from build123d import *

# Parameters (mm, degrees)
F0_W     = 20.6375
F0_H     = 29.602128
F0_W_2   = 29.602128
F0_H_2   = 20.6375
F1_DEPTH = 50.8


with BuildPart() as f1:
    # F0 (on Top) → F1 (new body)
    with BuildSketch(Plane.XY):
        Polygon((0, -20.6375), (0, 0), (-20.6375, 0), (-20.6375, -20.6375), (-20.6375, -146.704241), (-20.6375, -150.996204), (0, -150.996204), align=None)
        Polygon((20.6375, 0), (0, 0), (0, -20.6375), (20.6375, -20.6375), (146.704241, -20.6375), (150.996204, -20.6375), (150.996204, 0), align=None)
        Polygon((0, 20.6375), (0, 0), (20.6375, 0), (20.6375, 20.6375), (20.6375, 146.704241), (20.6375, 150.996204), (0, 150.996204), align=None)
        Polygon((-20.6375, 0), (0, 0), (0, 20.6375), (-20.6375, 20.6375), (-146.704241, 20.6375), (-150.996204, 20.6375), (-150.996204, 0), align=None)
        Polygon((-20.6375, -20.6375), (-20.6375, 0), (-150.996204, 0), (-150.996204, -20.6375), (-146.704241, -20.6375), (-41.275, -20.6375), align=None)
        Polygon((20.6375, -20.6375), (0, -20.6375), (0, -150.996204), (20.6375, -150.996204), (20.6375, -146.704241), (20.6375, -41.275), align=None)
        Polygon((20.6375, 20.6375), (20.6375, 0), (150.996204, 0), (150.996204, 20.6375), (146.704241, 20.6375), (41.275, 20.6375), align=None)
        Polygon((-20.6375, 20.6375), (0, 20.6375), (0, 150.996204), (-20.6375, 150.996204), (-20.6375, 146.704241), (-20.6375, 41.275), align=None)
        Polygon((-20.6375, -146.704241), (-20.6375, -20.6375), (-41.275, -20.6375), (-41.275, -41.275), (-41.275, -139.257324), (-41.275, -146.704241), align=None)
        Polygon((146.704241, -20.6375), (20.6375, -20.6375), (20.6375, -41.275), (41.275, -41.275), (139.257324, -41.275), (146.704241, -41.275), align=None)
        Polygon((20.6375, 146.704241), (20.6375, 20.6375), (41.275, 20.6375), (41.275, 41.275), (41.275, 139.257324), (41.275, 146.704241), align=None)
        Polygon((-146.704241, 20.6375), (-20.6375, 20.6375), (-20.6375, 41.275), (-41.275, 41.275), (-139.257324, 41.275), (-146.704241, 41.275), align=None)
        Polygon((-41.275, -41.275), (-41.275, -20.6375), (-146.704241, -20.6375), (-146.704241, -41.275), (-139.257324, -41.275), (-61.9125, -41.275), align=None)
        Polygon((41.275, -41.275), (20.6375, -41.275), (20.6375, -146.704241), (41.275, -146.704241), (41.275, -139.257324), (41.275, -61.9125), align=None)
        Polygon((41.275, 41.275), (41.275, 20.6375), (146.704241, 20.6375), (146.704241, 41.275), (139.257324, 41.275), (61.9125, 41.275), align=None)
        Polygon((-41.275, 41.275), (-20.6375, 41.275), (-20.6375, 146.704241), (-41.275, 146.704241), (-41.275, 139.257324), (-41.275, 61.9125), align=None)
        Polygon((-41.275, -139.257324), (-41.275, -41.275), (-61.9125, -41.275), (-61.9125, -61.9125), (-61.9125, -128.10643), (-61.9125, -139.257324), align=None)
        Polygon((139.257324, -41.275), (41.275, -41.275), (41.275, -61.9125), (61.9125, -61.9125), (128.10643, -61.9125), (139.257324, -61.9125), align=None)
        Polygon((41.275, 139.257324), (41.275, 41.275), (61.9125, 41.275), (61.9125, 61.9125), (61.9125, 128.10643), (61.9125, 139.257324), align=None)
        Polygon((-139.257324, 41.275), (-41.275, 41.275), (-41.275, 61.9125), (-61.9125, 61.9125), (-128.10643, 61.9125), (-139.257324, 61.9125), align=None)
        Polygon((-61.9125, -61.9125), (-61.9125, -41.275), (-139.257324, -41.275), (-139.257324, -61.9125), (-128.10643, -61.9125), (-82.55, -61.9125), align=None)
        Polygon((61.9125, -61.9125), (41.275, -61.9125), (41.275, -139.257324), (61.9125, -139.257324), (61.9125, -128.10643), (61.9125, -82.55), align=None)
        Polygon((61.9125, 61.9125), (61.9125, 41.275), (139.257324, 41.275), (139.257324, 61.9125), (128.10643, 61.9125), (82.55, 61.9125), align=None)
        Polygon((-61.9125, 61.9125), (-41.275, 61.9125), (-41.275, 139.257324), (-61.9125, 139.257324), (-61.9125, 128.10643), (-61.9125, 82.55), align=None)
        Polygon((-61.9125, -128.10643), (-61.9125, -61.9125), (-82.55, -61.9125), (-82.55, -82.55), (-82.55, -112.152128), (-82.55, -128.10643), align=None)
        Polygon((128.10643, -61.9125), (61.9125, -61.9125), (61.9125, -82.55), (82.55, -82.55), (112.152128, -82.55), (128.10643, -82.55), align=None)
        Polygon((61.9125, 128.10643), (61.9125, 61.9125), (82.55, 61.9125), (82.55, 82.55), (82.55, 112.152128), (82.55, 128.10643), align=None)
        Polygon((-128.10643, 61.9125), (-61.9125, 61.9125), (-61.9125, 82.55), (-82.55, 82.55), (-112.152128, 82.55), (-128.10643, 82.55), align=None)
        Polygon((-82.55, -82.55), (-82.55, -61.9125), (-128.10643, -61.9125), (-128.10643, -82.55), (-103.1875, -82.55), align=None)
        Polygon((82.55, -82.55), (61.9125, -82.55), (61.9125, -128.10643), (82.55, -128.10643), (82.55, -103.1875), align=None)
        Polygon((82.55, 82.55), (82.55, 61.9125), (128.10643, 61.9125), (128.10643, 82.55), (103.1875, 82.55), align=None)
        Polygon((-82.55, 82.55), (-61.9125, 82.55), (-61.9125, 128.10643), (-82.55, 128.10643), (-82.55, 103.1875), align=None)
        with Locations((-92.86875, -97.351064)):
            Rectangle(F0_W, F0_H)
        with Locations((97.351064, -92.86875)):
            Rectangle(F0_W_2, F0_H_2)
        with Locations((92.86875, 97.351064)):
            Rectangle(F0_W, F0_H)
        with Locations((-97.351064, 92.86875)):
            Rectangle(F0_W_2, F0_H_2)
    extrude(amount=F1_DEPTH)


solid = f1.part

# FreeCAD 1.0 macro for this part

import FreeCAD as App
import Part
import Sketcher
Q = App.Units.Quantity

doc = App.newDocument("Part")
params = doc.addObject("Spreadsheet::Sheet", "Params")
for row, (alias, value) in enumerate([
    ("sketch1_width", "1.625 in"),
    ("sketch1_width2", "0.8125 in"),
    ("pad1_length", "2 in"),
], start=1):
    params.set(f"A{row}", alias)
    params.set(f"B{row}", "=" + value)
    params.setAlias(f"B{row}", alias)

body = doc.addObject("PartDesign::Body", "Body")

# Sketch on XY plane
sketch1 = body.newObject("Sketcher::SketchObject", "Sketch")
sketch1.AttachmentSupport = (doc.getObject("XY_Plane"), [""])
sketch1.MapMode = "FlatFace"
sketch1.addGeometry([
    Part.LineSegment(App.Vector(-20.6, -146.7, 0), App.Vector(-20.6, -151, 0)),  # 0
    Part.LineSegment(App.Vector(-20.6, -151, 0), App.Vector(20.6, -151, 0)),  # 1
    Part.LineSegment(App.Vector(20.6, -151, 0), App.Vector(20.6, -146.7, 0)),  # 2
    Part.LineSegment(App.Vector(20.6, -146.7, 0), App.Vector(41.3, -146.7, 0)),  # 3
    Part.LineSegment(App.Vector(41.3, -146.7, 0), App.Vector(41.3, -139.3, 0)),  # 4
    Part.LineSegment(App.Vector(41.3, -139.3, 0), App.Vector(61.9, -139.3, 0)),  # 5
    Part.LineSegment(App.Vector(61.9, -139.3, 0), App.Vector(61.9, -128.1, 0)),  # 6
    Part.LineSegment(App.Vector(61.9, -128.1, 0), App.Vector(82.5, -128.1, 0)),  # 7
    Part.LineSegment(App.Vector(82.5, -128.1, 0), App.Vector(82.5, -103.2, 0)),  # 8
    Part.LineSegment(App.Vector(82.5, -103.2, 0), App.Vector(112.2, -103.2, 0)),  # 9
    Part.LineSegment(App.Vector(112.2, -103.2, 0), App.Vector(112.2, -82.5, 0)),  # 10
    Part.LineSegment(App.Vector(112.2, -82.5, 0), App.Vector(128.1, -82.5, 0)),  # 11
    Part.LineSegment(App.Vector(128.1, -82.5, 0), App.Vector(128.1, -61.9, 0)),  # 12
    Part.LineSegment(App.Vector(128.1, -61.9, 0), App.Vector(139.3, -61.9, 0)),  # 13
    Part.LineSegment(App.Vector(139.3, -61.9, 0), App.Vector(139.3, -41.3, 0)),  # 14
    Part.LineSegment(App.Vector(139.3, -41.3, 0), App.Vector(146.7, -41.3, 0)),  # 15
    Part.LineSegment(App.Vector(146.7, -41.3, 0), App.Vector(146.7, -20.6, 0)),  # 16
    Part.LineSegment(App.Vector(146.7, -20.6, 0), App.Vector(151, -20.6, 0)),  # 17
    Part.LineSegment(App.Vector(151, -20.6, 0), App.Vector(151, 20.6, 0)),  # 18
    Part.LineSegment(App.Vector(151, 20.6, 0), App.Vector(146.7, 20.6, 0)),  # 19
    Part.LineSegment(App.Vector(146.7, 20.6, 0), App.Vector(146.7, 41.3, 0)),  # 20
    Part.LineSegment(App.Vector(146.7, 41.3, 0), App.Vector(139.3, 41.3, 0)),  # 21
    Part.LineSegment(App.Vector(139.3, 41.3, 0), App.Vector(139.3, 61.9, 0)),  # 22
    Part.LineSegment(App.Vector(139.3, 61.9, 0), App.Vector(128.1, 61.9, 0)),  # 23
    Part.LineSegment(App.Vector(128.1, 61.9, 0), App.Vector(128.1, 82.5, 0)),  # 24
    Part.LineSegment(App.Vector(128.1, 82.5, 0), App.Vector(103.2, 82.5, 0)),  # 25
    Part.LineSegment(App.Vector(103.2, 82.5, 0), App.Vector(103.2, 112.2, 0)),  # 26
    Part.LineSegment(App.Vector(103.2, 112.2, 0), App.Vector(82.5, 112.2, 0)),  # 27
    Part.LineSegment(App.Vector(82.5, 112.2, 0), App.Vector(82.5, 128.1, 0)),  # 28
    Part.LineSegment(App.Vector(82.5, 128.1, 0), App.Vector(61.9, 128.1, 0)),  # 29
    Part.LineSegment(App.Vector(61.9, 128.1, 0), App.Vector(61.9, 139.3, 0)),  # 30
    Part.LineSegment(App.Vector(61.9, 139.3, 0), App.Vector(41.3, 139.3, 0)),  # 31
    Part.LineSegment(App.Vector(41.3, 139.3, 0), App.Vector(41.3, 146.7, 0)),  # 32
    Part.LineSegment(App.Vector(41.3, 146.7, 0), App.Vector(20.6, 146.7, 0)),  # 33
    Part.LineSegment(App.Vector(20.6, 146.7, 0), App.Vector(20.6, 151, 0)),  # 34
    Part.LineSegment(App.Vector(20.6, 151, 0), App.Vector(-20.6, 151, 0)),  # 35
    Part.LineSegment(App.Vector(-20.6, 151, 0), App.Vector(-20.6, 146.7, 0)),  # 36
    Part.LineSegment(App.Vector(-20.6, 146.7, 0), App.Vector(-41.3, 146.7, 0)),  # 37
    Part.LineSegment(App.Vector(-41.3, 146.7, 0), App.Vector(-41.3, 139.3, 0)),  # 38
    Part.LineSegment(App.Vector(-41.3, 139.3, 0), App.Vector(-61.9, 139.3, 0)),  # 39
    Part.LineSegment(App.Vector(-61.9, 139.3, 0), App.Vector(-61.9, 128.1, 0)),  # 40
    Part.LineSegment(App.Vector(-61.9, 128.1, 0), App.Vector(-82.5, 128.1, 0)),  # 41
    Part.LineSegment(App.Vector(-82.5, 128.1, 0), App.Vector(-82.5, 103.2, 0)),  # 42
    Part.LineSegment(App.Vector(-82.5, 103.2, 0), App.Vector(-112.2, 103.2, 0)),  # 43
    Part.LineSegment(App.Vector(-112.2, 103.2, 0), App.Vector(-112.2, 82.5, 0)),  # 44
    Part.LineSegment(App.Vector(-112.2, 82.5, 0), App.Vector(-128.1, 82.5, 0)),  # 45
    Part.LineSegment(App.Vector(-128.1, 82.5, 0), App.Vector(-128.1, 61.9, 0)),  # 46
    Part.LineSegment(App.Vector(-128.1, 61.9, 0), App.Vector(-139.3, 61.9, 0)),  # 47
    Part.LineSegment(App.Vector(-139.3, 61.9, 0), App.Vector(-139.3, 41.3, 0)),  # 48
    Part.LineSegment(App.Vector(-139.3, 41.3, 0), App.Vector(-146.7, 41.3, 0)),  # 49
    Part.LineSegment(App.Vector(-146.7, 41.3, 0), App.Vector(-146.7, 20.6, 0)),  # 50
    Part.LineSegment(App.Vector(-146.7, 20.6, 0), App.Vector(-151, 20.6, 0)),  # 51
    Part.LineSegment(App.Vector(-151, 20.6, 0), App.Vector(-151, -20.6, 0)),  # 52
    Part.LineSegment(App.Vector(-151, -20.6, 0), App.Vector(-146.7, -20.6, 0)),  # 53
    Part.LineSegment(App.Vector(-146.7, -20.6, 0), App.Vector(-146.7, -41.3, 0)),  # 54
    Part.LineSegment(App.Vector(-146.7, -41.3, 0), App.Vector(-139.3, -41.3, 0)),  # 55
    Part.LineSegment(App.Vector(-139.3, -41.3, 0), App.Vector(-139.3, -61.9, 0)),  # 56
    Part.LineSegment(App.Vector(-139.3, -61.9, 0), App.Vector(-128.1, -61.9, 0)),  # 57
    Part.LineSegment(App.Vector(-128.1, -61.9, 0), App.Vector(-128.1, -82.5, 0)),  # 58
    Part.LineSegment(App.Vector(-128.1, -82.5, 0), App.Vector(-103.2, -82.5, 0)),  # 59
    Part.LineSegment(App.Vector(-103.2, -82.5, 0), App.Vector(-103.2, -112.2, 0)),  # 60
    Part.LineSegment(App.Vector(-103.2, -112.2, 0), App.Vector(-82.5, -112.2, 0)),  # 61
    Part.LineSegment(App.Vector(-82.5, -112.2, 0), App.Vector(-82.5, -128.1, 0)),  # 62
    Part.LineSegment(App.Vector(-82.5, -128.1, 0), App.Vector(-61.9, -128.1, 0)),  # 63
    Part.LineSegment(App.Vector(-61.9, -128.1, 0), App.Vector(-61.9, -139.3, 0)),  # 64
    Part.LineSegment(App.Vector(-61.9, -139.3, 0), App.Vector(-41.3, -139.3, 0)),  # 65
    Part.LineSegment(App.Vector(-41.3, -139.3, 0), App.Vector(-41.3, -146.7, 0)),  # 66
    Part.LineSegment(App.Vector(-41.3, -146.7, 0), App.Vector(-20.6, -146.7, 0)),  # 67
], False)
sketch1.addConstraint([
    Sketcher.Constraint("Coincident", 0, 2, 1, 1),
    Sketcher.Constraint("Coincident", 1, 2, 2, 1),
    Sketcher.Constraint("Coincident", 2, 2, 3, 1),
    Sketcher.Constraint("Coincident", 3, 2, 4, 1),
    Sketcher.Constraint("Coincident", 4, 2, 5, 1),
    Sketcher.Constraint("Coincident", 5, 2, 6, 1),
    Sketcher.Constraint("Coincident", 6, 2, 7, 1),
    Sketcher.Constraint("Coincident", 7, 2, 8, 1),
    Sketcher.Constraint("Coincident", 8, 2, 9, 1),
    Sketcher.Constraint("Coincident", 9, 2, 10, 1),
    Sketcher.Constraint("Coincident", 10, 2, 11, 1),
    Sketcher.Constraint("Coincident", 11, 2, 12, 1),
    Sketcher.Constraint("Coincident", 12, 2, 13, 1),
    Sketcher.Constraint("Coincident", 13, 2, 14, 1),
    Sketcher.Constraint("Coincident", 14, 2, 15, 1),
    Sketcher.Constraint("Coincident", 15, 2, 16, 1),
    Sketcher.Constraint("Coincident", 16, 2, 17, 1),
    Sketcher.Constraint("Coincident", 17, 2, 18, 1),
    Sketcher.Constraint("Coincident", 18, 2, 19, 1),
    Sketcher.Constraint("Coincident", 19, 2, 20, 1),
    Sketcher.Constraint("Coincident", 20, 2, 21, 1),
    Sketcher.Constraint("Coincident", 21, 2, 22, 1),
    Sketcher.Constraint("Coincident", 22, 2, 23, 1),
    Sketcher.Constraint("Coincident", 23, 2, 24, 1),
    Sketcher.Constraint("Coincident", 24, 2, 25, 1),
    Sketcher.Constraint("Coincident", 25, 2, 26, 1),
    Sketcher.Constraint("Coincident", 26, 2, 27, 1),
    Sketcher.Constraint("Coincident", 27, 2, 28, 1),
    Sketcher.Constraint("Coincident", 28, 2, 29, 1),
    Sketcher.Constraint("Coincident", 29, 2, 30, 1),
    Sketcher.Constraint("Coincident", 30, 2, 31, 1),
    Sketcher.Constraint("Coincident", 31, 2, 32, 1),
    Sketcher.Constraint("Coincident", 32, 2, 33, 1),
    Sketcher.Constraint("Coincident", 33, 2, 34, 1),
    Sketcher.Constraint("Coincident", 34, 2, 35, 1),
    Sketcher.Constraint("Coincident", 35, 2, 36, 1),
    Sketcher.Constraint("Coincident", 36, 2, 37, 1),
    Sketcher.Constraint("Coincident", 37, 2, 38, 1),
    Sketcher.Constraint("Coincident", 38, 2, 39, 1),
    Sketcher.Constraint("Coincident", 39, 2, 40, 1),
    Sketcher.Constraint("Coincident", 40, 2, 41, 1),
    Sketcher.Constraint("Coincident", 41, 2, 42, 1),
    Sketcher.Constraint("Coincident", 42, 2, 43, 1),
    Sketcher.Constraint("Coincident", 43, 2, 44, 1),
    Sketcher.Constraint("Coincident", 44, 2, 45, 1),
    Sketcher.Constraint("Coincident", 45, 2, 46, 1),
    Sketcher.Constraint("Coincident", 46, 2, 47, 1),
    Sketcher.Constraint("Coincident", 47, 2, 48, 1),
    Sketcher.Constraint("Coincident", 48, 2, 49, 1),
    Sketcher.Constraint("Coincident", 49, 2, 50, 1),
    Sketcher.Constraint("Coincident", 50, 2, 51, 1),
    Sketcher.Constraint("Coincident", 51, 2, 52, 1),
    Sketcher.Constraint("Coincident", 52, 2, 53, 1),
    Sketcher.Constraint("Coincident", 53, 2, 54, 1),
    Sketcher.Constraint("Coincident", 54, 2, 55, 1),
    Sketcher.Constraint("Coincident", 55, 2, 56, 1),
    Sketcher.Constraint("Coincident", 56, 2, 57, 1),
    Sketcher.Constraint("Coincident", 57, 2, 58, 1),
    Sketcher.Constraint("Coincident", 58, 2, 59, 1),
    Sketcher.Constraint("Coincident", 59, 2, 60, 1),
    Sketcher.Constraint("Coincident", 60, 2, 61, 1),
    Sketcher.Constraint("Coincident", 61, 2, 62, 1),
    Sketcher.Constraint("Coincident", 62, 2, 63, 1),
    Sketcher.Constraint("Coincident", 63, 2, 64, 1),
    Sketcher.Constraint("Coincident", 64, 2, 65, 1),
    Sketcher.Constraint("Coincident", 65, 2, 66, 1),
    Sketcher.Constraint("Coincident", 66, 2, 67, 1),
    Sketcher.Constraint("Coincident", 67, 2, 0, 1),
    Sketcher.Constraint("Vertical", 0),
    Sketcher.Constraint("Horizontal", 1),
    Sketcher.Constraint("Vertical", 2),
    Sketcher.Constraint("Horizontal", 3),
    Sketcher.Constraint("Vertical", 4),
    Sketcher.Constraint("Horizontal", 5),
    Sketcher.Constraint("Vertical", 6),
    Sketcher.Constraint("Horizontal", 7),
    Sketcher.Constraint("Vertical", 8),
    Sketcher.Constraint("Horizontal", 9),
    Sketcher.Constraint("Vertical", 10),
    Sketcher.Constraint("Horizontal", 11),
    Sketcher.Constraint("Vertical", 12),
    Sketcher.Constraint("Horizontal", 13),
    Sketcher.Constraint("Vertical", 14),
    Sketcher.Constraint("Horizontal", 15),
    Sketcher.Constraint("Vertical", 16),
    Sketcher.Constraint("Horizontal", 17),
    Sketcher.Constraint("Vertical", 18),
    Sketcher.Constraint("Horizontal", 19),
    Sketcher.Constraint("Vertical", 20),
    Sketcher.Constraint("Horizontal", 21),
    Sketcher.Constraint("Vertical", 22),
    Sketcher.Constraint("Horizontal", 23),
    Sketcher.Constraint("Vertical", 24),
    Sketcher.Constraint("Horizontal", 25),
    Sketcher.Constraint("Vertical", 26),
    Sketcher.Constraint("Horizontal", 27),
    Sketcher.Constraint("Vertical", 28),
    Sketcher.Constraint("Horizontal", 29),
    Sketcher.Constraint("Vertical", 30),
    Sketcher.Constraint("Horizontal", 31),
    Sketcher.Constraint("Vertical", 32),
    Sketcher.Constraint("Horizontal", 33),
    Sketcher.Constraint("Vertical", 34),
    Sketcher.Constraint("Horizontal", 35),
    Sketcher.Constraint("Vertical", 36),
    Sketcher.Constraint("Horizontal", 37),
    Sketcher.Constraint("Vertical", 38),
    Sketcher.Constraint("Horizontal", 39),
    Sketcher.Constraint("Vertical", 40),
    Sketcher.Constraint("Horizontal", 41),
    Sketcher.Constraint("Vertical", 42),
    Sketcher.Constraint("Horizontal", 43),
    Sketcher.Constraint("Vertical", 44),
    Sketcher.Constraint("Horizontal", 45),
    Sketcher.Constraint("Vertical", 46),
    Sketcher.Constraint("Horizontal", 47),
    Sketcher.Constraint("Vertical", 48),
    Sketcher.Constraint("Horizontal", 49),
    Sketcher.Constraint("Vertical", 50),
    Sketcher.Constraint("Horizontal", 51),
    Sketcher.Constraint("Vertical", 52),
    Sketcher.Constraint("Horizontal", 53),
    Sketcher.Constraint("Vertical", 54),
    Sketcher.Constraint("Horizontal", 55),
    Sketcher.Constraint("Vertical", 56),
    Sketcher.Constraint("Horizontal", 57),
    Sketcher.Constraint("Vertical", 58),
    Sketcher.Constraint("Horizontal", 59),
    Sketcher.Constraint("Vertical", 60),
    Sketcher.Constraint("Horizontal", 61),
    Sketcher.Constraint("Vertical", 62),
    Sketcher.Constraint("Horizontal", 63),
    Sketcher.Constraint("Vertical", 64),
    Sketcher.Constraint("Horizontal", 65),
    Sketcher.Constraint("Vertical", 66),
    Sketcher.Constraint("Horizontal", 67),
    Sketcher.Constraint("Symmetric", 0, 2, 34, 2, -1, 1),
    Sketcher.Constraint("Symmetric", 2, 2, 36, 2, -1, 1),
    Sketcher.Constraint("Symmetric", 4, 2, 38, 2, -1, 1),
    Sketcher.Constraint("Symmetric", 6, 2, 40, 2, -1, 1),
    Sketcher.Constraint("Symmetric", 8, 2, 42, 2, -1, 1),
    Sketcher.Constraint("Symmetric", 10, 2, 44, 2, -1, 1),
    Sketcher.Constraint("Symmetric", 12, 2, 46, 2, -1, 1),
    Sketcher.Constraint("Symmetric", 14, 2, 48, 2, -1, 1),
    Sketcher.Constraint("Symmetric", 16, 2, 50, 2, -1, 1),
    Sketcher.Constraint("Symmetric", 18, 2, 52, 2, -1, 1),
    Sketcher.Constraint("Symmetric", 20, 2, 54, 2, -1, 1),
    Sketcher.Constraint("Symmetric", 22, 2, 56, 2, -1, 1),
    Sketcher.Constraint("Symmetric", 24, 2, 58, 2, -1, 1),
    Sketcher.Constraint("Symmetric", 26, 2, 60, 2, -1, 1),
    Sketcher.Constraint("Symmetric", 28, 2, 62, 2, -1, 1),
    Sketcher.Constraint("Symmetric", 30, 2, 64, 2, -1, 1),
    Sketcher.Constraint("Symmetric", 32, 2, 66, 2, -1, 1),
    Sketcher.Constraint("Symmetric", 33, 2, 36, 2, -2),
    Sketcher.Constraint("Symmetric", 31, 2, 38, 2, -2),
    Sketcher.Constraint("Symmetric", 29, 2, 40, 2, -2),
    Sketcher.Constraint("Symmetric", 24, 2, 45, 2, -2),
    Sketcher.Constraint("Symmetric", 22, 2, 47, 2, -2),
    Sketcher.Constraint("Symmetric", 20, 2, 49, 2, -2),
    Sketcher.Constraint("Horizontal", 19, 2, 50, 2),
    Sketcher.Constraint("Vertical", 8, 2, 27, 2),
    Sketcher.Constraint("Equal", 3, 5),
    Sketcher.Constraint("Equal", 5, 7),
    Sketcher.Constraint("Equal", 7, 27),
    Sketcher.Constraint("Equal", 53, 0),
    Sketcher.Constraint("Equal", 55, 4),
    Sketcher.Constraint("Equal", 57, 6),
    Sketcher.Constraint("Equal", 59, 8),
    Sketcher.Constraint("Equal", 67, 10),
    Sketcher.Constraint("Equal", 10, 12),
    Sketcher.Constraint("Equal", 12, 14),
    Sketcher.Constraint("Equal", 14, 16),
    Sketcher.Constraint("Equal", 35, 18),
    Sketcher.Constraint("Equal", 43, 26),
    Sketcher.Constraint("DistanceX", 1, 1, 1, 2, Q("1.625 in")),
    Sketcher.Constraint("DistanceX", 3, 1, 3, 2, Q("0.8125 in")),
    Sketcher.Constraint("DistanceX", 11, 1, 11, 2, 15.954302),
    Sketcher.Constraint("DistanceX", 9, 1, 9, 2, 29.602128),
    Sketcher.Constraint("DistanceX", 13, 1, 13, 2, 11.150894),
    Sketcher.Constraint("DistanceX", 15, 1, 15, 2, 7.446917),
    Sketcher.Constraint("DistanceX", 17, 1, 17, 2, 4.291963),
])
sketch1.setExpression("Constraints[174]", "Params.sketch1_width")
sketch1.setExpression("Constraints[175]", "Params.sketch1_width2")
pad1 = body.newObject("PartDesign::Pad", "Pad")
pad1.Profile = sketch1
pad1.setExpression("Length", "Params.pad1_length")

doc.recompute()
